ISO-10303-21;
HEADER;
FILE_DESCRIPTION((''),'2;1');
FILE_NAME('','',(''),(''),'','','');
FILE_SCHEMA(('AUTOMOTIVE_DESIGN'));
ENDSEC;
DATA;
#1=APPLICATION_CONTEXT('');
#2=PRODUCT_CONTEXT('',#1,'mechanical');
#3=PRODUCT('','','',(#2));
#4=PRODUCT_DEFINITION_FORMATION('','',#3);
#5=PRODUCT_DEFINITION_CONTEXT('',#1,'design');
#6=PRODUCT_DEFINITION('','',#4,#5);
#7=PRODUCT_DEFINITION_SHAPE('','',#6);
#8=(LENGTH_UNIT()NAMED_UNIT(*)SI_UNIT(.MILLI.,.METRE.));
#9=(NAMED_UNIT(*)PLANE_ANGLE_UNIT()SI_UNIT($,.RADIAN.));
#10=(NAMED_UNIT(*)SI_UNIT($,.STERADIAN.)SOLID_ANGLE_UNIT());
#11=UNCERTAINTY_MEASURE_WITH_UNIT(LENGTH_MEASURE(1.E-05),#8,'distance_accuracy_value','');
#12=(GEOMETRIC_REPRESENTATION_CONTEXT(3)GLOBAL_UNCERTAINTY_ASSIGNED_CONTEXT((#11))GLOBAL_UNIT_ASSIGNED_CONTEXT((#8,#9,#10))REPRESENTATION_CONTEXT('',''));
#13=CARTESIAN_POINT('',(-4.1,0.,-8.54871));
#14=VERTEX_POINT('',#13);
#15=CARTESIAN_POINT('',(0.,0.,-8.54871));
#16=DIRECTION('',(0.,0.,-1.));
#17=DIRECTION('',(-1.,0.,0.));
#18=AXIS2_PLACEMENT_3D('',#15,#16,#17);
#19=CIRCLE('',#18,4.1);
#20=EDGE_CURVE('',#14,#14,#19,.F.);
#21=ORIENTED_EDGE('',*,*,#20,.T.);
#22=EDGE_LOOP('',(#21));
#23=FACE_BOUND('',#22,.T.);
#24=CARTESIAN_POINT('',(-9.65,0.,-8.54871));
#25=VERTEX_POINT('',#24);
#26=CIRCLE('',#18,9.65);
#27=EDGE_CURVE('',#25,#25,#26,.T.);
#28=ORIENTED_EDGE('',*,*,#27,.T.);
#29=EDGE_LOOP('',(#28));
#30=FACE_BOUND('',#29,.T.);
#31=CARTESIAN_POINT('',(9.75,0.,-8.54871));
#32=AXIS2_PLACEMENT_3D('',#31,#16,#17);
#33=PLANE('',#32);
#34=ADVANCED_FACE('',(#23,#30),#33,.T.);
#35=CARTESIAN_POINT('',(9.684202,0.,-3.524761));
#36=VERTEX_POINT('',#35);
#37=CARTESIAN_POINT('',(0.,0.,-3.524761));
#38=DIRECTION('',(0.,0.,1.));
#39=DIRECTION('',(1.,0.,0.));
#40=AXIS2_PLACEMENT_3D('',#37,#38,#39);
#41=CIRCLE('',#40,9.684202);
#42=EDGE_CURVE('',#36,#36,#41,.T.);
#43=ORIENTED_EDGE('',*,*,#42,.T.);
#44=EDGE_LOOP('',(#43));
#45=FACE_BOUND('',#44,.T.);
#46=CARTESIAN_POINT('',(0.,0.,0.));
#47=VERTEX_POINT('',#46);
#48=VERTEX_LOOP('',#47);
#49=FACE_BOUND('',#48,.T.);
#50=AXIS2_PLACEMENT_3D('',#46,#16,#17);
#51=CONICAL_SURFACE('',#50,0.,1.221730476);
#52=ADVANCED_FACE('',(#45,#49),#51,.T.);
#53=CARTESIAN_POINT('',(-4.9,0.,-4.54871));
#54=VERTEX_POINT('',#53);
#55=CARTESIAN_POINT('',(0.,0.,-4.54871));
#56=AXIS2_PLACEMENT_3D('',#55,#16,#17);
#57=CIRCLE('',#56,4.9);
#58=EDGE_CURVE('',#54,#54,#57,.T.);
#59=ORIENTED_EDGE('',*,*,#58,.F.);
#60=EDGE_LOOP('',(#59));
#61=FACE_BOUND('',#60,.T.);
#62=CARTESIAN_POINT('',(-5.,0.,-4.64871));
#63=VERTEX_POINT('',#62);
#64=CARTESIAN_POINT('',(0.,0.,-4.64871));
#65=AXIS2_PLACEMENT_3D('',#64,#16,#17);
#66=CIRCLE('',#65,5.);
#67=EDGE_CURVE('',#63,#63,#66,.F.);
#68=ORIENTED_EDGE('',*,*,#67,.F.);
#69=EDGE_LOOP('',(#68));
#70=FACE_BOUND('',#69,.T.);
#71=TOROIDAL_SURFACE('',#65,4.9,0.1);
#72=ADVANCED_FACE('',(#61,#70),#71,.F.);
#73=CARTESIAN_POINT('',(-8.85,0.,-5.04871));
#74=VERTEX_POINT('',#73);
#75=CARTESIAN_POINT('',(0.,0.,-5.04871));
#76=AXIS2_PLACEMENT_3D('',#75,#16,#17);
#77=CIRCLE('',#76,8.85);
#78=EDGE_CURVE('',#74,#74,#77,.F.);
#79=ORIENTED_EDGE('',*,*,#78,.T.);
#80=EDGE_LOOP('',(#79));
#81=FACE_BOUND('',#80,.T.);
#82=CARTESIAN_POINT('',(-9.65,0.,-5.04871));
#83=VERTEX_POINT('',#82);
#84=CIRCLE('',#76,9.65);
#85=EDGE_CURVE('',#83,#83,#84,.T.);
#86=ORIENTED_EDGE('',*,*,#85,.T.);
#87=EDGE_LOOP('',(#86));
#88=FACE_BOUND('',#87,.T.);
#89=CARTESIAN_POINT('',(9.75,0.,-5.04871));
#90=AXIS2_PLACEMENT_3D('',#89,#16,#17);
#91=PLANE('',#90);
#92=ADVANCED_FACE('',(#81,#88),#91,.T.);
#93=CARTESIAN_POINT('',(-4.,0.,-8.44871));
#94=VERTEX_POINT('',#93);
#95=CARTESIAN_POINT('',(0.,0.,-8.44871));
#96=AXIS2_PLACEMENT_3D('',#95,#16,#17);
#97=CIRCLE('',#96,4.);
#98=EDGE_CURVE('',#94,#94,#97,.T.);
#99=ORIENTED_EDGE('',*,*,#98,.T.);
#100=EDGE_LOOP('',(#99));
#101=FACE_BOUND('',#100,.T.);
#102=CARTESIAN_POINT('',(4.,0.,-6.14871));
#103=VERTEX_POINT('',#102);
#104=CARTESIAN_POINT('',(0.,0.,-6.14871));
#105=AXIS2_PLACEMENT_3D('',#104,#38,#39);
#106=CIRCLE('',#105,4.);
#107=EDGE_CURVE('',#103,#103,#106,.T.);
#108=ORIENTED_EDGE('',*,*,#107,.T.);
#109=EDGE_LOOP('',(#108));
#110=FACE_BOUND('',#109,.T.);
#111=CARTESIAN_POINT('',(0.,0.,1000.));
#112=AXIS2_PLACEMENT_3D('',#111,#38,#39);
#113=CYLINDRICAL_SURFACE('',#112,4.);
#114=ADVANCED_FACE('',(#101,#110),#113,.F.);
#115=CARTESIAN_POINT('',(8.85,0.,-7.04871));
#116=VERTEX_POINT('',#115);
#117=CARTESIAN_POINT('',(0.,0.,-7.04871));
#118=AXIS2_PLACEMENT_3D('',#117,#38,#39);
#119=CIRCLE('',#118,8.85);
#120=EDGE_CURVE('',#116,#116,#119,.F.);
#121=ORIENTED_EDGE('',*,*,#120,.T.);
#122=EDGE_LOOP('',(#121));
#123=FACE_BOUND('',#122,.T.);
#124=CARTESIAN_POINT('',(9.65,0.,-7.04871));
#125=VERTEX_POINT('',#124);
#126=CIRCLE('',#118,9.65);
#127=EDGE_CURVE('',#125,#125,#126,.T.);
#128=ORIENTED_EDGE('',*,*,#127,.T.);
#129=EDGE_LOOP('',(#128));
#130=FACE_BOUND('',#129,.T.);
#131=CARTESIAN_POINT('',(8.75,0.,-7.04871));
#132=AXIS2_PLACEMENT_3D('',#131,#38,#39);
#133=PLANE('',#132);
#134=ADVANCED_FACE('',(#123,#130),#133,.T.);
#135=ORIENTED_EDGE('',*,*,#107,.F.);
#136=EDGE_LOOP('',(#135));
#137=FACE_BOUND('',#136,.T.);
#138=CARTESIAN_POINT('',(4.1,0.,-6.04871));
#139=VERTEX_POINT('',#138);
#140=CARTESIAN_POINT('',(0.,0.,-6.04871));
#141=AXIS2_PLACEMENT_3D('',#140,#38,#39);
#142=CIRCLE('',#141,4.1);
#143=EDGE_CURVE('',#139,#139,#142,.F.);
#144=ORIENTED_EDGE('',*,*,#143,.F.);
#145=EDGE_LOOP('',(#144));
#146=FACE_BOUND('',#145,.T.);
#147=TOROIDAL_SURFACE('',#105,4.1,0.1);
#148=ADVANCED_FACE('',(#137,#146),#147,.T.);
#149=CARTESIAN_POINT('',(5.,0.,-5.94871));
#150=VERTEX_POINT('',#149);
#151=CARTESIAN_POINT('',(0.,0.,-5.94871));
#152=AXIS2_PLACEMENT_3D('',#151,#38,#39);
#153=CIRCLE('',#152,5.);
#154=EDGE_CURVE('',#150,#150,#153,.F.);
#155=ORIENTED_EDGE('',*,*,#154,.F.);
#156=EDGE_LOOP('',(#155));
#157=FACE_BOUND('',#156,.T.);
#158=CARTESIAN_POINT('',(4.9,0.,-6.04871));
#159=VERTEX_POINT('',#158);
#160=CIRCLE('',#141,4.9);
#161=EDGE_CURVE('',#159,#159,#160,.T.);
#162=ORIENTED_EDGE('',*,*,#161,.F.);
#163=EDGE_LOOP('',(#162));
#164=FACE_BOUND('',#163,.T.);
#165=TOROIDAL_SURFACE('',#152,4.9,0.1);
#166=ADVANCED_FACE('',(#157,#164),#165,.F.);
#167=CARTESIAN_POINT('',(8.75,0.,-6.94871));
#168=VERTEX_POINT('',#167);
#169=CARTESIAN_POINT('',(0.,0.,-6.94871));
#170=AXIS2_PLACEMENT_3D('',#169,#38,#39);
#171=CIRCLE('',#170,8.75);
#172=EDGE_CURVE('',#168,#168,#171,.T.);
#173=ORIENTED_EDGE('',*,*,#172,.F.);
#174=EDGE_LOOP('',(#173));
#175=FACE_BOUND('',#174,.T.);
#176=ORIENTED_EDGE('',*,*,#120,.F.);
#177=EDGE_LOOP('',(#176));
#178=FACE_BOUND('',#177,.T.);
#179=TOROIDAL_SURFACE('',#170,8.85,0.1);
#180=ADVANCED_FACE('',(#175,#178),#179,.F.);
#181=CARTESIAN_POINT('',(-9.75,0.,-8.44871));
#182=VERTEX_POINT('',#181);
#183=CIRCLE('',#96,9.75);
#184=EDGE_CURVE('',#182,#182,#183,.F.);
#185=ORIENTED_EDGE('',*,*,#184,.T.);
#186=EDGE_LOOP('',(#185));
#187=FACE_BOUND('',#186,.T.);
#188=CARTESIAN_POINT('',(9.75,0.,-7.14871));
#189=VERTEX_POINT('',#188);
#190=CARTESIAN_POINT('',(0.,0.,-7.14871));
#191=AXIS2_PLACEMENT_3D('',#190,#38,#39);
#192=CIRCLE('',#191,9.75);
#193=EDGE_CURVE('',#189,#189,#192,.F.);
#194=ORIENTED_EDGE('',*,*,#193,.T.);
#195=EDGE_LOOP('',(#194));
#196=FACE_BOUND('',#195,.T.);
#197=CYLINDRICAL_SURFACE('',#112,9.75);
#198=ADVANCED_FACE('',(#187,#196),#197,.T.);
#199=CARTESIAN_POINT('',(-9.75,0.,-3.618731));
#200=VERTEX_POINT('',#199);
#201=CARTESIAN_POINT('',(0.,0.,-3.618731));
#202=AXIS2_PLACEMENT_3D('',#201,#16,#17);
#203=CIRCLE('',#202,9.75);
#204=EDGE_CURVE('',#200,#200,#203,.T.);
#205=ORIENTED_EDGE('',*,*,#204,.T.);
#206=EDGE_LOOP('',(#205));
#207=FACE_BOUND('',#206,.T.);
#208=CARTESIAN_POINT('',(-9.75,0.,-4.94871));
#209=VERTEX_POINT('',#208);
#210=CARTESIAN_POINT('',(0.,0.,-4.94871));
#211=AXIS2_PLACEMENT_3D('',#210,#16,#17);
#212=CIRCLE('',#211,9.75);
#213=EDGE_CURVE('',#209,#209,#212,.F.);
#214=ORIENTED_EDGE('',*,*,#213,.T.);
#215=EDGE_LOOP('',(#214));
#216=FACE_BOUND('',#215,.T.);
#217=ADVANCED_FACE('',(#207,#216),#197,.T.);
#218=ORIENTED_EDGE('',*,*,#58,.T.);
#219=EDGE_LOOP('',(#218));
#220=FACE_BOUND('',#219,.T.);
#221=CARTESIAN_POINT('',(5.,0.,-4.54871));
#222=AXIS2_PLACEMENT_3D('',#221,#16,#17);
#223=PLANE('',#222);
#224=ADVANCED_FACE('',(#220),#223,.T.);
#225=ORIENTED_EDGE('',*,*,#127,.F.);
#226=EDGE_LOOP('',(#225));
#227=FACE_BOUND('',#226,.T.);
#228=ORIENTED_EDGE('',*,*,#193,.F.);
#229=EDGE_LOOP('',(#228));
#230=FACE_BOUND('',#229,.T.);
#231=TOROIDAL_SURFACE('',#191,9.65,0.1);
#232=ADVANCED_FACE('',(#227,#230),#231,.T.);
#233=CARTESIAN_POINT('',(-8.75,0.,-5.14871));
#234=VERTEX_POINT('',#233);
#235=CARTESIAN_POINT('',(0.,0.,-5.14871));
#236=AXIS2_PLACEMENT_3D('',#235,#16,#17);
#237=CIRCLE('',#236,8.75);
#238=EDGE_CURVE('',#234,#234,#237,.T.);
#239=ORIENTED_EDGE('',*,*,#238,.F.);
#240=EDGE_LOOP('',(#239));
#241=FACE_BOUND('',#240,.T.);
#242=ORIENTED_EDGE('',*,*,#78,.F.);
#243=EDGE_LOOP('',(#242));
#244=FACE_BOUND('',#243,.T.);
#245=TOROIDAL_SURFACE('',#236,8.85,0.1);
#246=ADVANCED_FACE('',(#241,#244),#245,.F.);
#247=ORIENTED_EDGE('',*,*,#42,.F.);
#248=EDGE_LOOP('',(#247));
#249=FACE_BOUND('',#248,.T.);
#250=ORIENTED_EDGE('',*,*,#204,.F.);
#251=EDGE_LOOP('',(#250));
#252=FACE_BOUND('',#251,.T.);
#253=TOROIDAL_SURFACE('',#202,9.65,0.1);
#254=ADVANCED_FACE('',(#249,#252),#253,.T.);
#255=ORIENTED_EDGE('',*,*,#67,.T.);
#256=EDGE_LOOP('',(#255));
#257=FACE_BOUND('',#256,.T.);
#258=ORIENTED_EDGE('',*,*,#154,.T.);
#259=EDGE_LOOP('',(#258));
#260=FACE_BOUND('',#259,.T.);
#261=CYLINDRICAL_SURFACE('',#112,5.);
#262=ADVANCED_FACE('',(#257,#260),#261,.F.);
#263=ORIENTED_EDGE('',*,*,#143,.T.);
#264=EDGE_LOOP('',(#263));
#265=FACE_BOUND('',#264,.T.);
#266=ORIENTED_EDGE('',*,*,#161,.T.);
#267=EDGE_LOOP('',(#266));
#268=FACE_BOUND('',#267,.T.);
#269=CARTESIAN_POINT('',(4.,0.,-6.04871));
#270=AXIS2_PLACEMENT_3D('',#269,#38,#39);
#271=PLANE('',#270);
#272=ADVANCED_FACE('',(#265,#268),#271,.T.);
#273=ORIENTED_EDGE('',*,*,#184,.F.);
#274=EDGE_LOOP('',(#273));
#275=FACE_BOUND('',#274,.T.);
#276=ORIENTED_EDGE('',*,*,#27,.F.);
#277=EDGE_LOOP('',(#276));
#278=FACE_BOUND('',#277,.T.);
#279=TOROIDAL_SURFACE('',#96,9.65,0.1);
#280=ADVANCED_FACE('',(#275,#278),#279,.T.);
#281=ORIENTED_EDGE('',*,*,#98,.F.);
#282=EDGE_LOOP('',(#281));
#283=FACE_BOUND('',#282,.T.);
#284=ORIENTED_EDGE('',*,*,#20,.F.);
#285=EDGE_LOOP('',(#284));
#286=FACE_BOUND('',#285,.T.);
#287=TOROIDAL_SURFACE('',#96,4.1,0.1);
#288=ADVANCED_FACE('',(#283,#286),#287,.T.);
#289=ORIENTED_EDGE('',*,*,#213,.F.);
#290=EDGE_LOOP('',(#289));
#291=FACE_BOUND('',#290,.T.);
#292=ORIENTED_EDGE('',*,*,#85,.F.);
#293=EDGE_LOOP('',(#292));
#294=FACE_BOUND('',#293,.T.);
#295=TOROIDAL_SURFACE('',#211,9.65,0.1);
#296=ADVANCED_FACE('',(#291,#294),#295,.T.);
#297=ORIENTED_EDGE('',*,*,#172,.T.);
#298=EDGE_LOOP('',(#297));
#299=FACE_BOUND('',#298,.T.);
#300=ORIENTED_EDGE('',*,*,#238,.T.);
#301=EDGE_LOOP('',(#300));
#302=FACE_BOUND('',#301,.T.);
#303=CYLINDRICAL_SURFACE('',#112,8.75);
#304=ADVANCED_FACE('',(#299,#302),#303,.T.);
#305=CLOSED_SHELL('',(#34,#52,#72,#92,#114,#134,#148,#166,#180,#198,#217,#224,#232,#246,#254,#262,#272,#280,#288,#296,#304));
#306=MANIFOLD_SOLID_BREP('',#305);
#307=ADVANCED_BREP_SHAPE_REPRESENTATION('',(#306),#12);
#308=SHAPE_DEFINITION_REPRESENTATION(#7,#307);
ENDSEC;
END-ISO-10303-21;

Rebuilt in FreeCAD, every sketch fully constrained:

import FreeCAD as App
import Part
import Sketcher

V = App.Vector
Q = App.Units.Quantity


def edges_at(feature, points):
    """Names of the edges that pass closest to the given points."""
    edges = feature.Shape.Edges
    near = lambda p: min(range(len(edges)), key=lambda i: edges[i].distToShape(Part.Vertex(*p))[0])
    return sorted({f"Edge{near(p) + 1}" for p in points})

doc = App.newDocument("Part")
body = doc.addObject("PartDesign::Body", "Body")

sketch1 = body.newObject("Sketcher::SketchObject", "Sketch")
sketch1.AttachmentSupport = (doc.getObject("XZ_Plane"), [""])
sketch1.MapMode = "FlatFace"
sketch1.addGeometry([
    Part.LineSegment(V(9.8, -3.5, 0), V(9.8, -5, 0)),
    Part.LineSegment(V(9.8, -5, 0), V(8.8, -5, 0)),
    Part.LineSegment(V(8.8, -5, 0), V(8.8, -7, 0)),
    Part.LineSegment(V(8.8, -7, 0), V(9.8, -7, 0)),
    Part.LineSegment(V(9.8, -7, 0), V(9.8, -8.5, 0)),
    Part.LineSegment(V(9.8, -8.5, 0), V(4, -8.5, 0)),
    Part.LineSegment(V(4, -8.5, 0), V(4, -6, 0)),
    Part.LineSegment(V(4, -6, 0), V(5, -6, 0)),
    Part.LineSegment(V(5, -6, 0), V(5, -4.5, 0)),
    Part.LineSegment(V(5, -4.5, 0), V(0, -4.5, 0)),
    Part.LineSegment(V(0, -4.5, 0), V(0, 0, 0)),
    Part.LineSegment(V(0, 0, 0), V(9.8, -3.5, 0)),
], False)
sketch1.addConstraint([
    Sketcher.Constraint("Coincident", 0, 2, 1, 1),
    Sketcher.Constraint("Coincident", 1, 2, 2, 1),
    Sketcher.Constraint("Coincident", 2, 2, 3, 1),
    Sketcher.Constraint("Coincident", 3, 2, 4, 1),
    Sketcher.Constraint("Coincident", 4, 2, 5, 1),
    Sketcher.Constraint("Coincident", 5, 2, 6, 1),
    Sketcher.Constraint("Coincident", 6, 2, 7, 1),
    Sketcher.Constraint("Coincident", 7, 2, 8, 1),
    Sketcher.Constraint("Coincident", 8, 2, 9, 1),
    Sketcher.Constraint("Coincident", 9, 2, 10, 1),
    Sketcher.Constraint("Coincident", 10, 2, 11, 1),
    Sketcher.Constraint("Coincident", 11, 2, 0, 1),
    Sketcher.Constraint("Vertical", 0),
    Sketcher.Constraint("Horizontal", 1),
    Sketcher.Constraint("Vertical", 2),
    Sketcher.Constraint("Horizontal", 3),
    Sketcher.Constraint("Vertical", 4),
    Sketcher.Constraint("Horizontal", 5),
    Sketcher.Constraint("Vertical", 6),
    Sketcher.Constraint("Horizontal", 7),
    Sketcher.Constraint("Vertical", 8),
    Sketcher.Constraint("Horizontal", 9),
    Sketcher.Constraint("Vertical", 10),
    Sketcher.Constraint("Coincident", 10, 2, -1, 1),
    Sketcher.Constraint("Vertical", 0, 2, 3, 2),
    Sketcher.Constraint("Equal", 3, 7),
    Sketcher.Constraint("Equal", 0, 4),
    Sketcher.Constraint("Equal", 4, 8),
    Sketcher.Constraint("DistanceX", 1, 2, 1, 1, Q("1 mm")),
    Sketcher.Constraint("DistanceX", 9, 2, 9, 1, Q("5 mm")),
    Sketcher.Constraint("DistanceY", 2, 2, 2, 1, Q("2 mm")),
    Sketcher.Constraint("Angle", 11, Q("-20 deg")),
    Sketcher.Constraint("DistanceY", 0, 2, 0, 1, Q("1.5 mm")),
    Sketcher.Constraint("DistanceY", 6, 1, 6, 2, Q("2.5 mm")),
    Sketcher.Constraint("DistanceX", 5, 2, 5, 1, Q("5.75 mm")),
])
revolution = body.newObject("PartDesign::Revolution", "Revolution")
revolution.Profile = sketch1
revolution.ReferenceAxis = (sketch1, ["V_Axis"])
revolution.Angle = 360
doc.recompute()

fillet = body.newObject("PartDesign::Fillet", "Fillet")
fillet.Base = (revolution, edges_at(revolution, [
    (-5, 0, -4.549),
    (-5, 0, -6.049),
    (-4, 0, -6.049),
    (-4, 0, -8.549),
    (-9.75, 0, -8.549),
    (-9.75, 0, -7.049),
    (-8.75, 0, -7.049),
    (-8.75, 0, -5.049),
    (-9.75, 0, -5.049),
    (-9.75, 0, -3.549),
]))
fillet.Radius = 0.1

doc.recompute()
